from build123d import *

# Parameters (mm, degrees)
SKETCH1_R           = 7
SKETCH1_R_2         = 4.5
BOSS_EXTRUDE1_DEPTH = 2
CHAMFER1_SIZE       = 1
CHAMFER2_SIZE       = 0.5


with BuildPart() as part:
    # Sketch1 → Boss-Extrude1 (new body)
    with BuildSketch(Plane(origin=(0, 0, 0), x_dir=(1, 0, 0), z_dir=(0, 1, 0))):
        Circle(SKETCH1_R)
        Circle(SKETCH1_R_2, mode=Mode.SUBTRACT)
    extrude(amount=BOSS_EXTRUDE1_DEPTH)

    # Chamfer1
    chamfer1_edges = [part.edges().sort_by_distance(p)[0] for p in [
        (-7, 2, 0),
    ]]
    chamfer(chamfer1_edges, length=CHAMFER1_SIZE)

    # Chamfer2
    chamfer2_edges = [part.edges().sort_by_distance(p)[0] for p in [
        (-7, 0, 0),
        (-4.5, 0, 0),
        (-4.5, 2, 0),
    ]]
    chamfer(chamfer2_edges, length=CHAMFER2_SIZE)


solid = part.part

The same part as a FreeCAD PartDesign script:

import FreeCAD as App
import Part
import Sketcher

V = App.Vector
Q = App.Units.Quantity


def edges_at(feature, points):
    """Names of the edges that pass closest to the given points."""
    edges = feature.Shape.Edges
    near = lambda p: min(range(len(edges)), key=lambda i: edges[i].distToShape(Part.Vertex(*p))[0])
    return sorted({f"Edge{near(p) + 1}" for p in points})

doc = App.newDocument("Part")
body = doc.addObject("PartDesign::Body", "Body")

sketch1 = body.newObject("Sketcher::SketchObject", "Sketch")
sketch1.AttachmentSupport = (doc.getObject("XZ_Plane"), [""])
sketch1.MapMode = "FlatFace"
sketch1.addGeometry([
    Part.Circle(V(0, 0, 0), V(0, 0, 1), 7),
    Part.Circle(V(0, 0, 0), V(0, 0, 1), 4.5),
], False)
sketch1.addConstraint([
    Sketcher.Constraint("Coincident", 0, 3, -1, 1),
    Sketcher.Constraint("Coincident", 1, 3, -1, 1),
    Sketcher.Constraint("Diameter", 0, Q("14 mm")),
    Sketcher.Constraint("Diameter", 1, Q("9 mm")),
])
pad1 = body.newObject("PartDesign::Pad", "Pad")
pad1.Profile = sketch1
pad1.Length = 2
pad1.Reversed = True
doc.recompute()

chamfer = body.newObject("PartDesign::Chamfer", "Chamfer")
chamfer.Base = (pad1, edges_at(pad1, [(-7, 2, 0)]))
chamfer.Size = 1
doc.recompute()

chamfer2 = body.newObject("PartDesign::Chamfer", "Chamfer001")
chamfer2.Base = (chamfer, edges_at(chamfer, [(-7, 0, 0), (-4.5, 0, 0), (-4.5, 2, 0)]))
chamfer2.Size = 0.5

doc.recompute()
